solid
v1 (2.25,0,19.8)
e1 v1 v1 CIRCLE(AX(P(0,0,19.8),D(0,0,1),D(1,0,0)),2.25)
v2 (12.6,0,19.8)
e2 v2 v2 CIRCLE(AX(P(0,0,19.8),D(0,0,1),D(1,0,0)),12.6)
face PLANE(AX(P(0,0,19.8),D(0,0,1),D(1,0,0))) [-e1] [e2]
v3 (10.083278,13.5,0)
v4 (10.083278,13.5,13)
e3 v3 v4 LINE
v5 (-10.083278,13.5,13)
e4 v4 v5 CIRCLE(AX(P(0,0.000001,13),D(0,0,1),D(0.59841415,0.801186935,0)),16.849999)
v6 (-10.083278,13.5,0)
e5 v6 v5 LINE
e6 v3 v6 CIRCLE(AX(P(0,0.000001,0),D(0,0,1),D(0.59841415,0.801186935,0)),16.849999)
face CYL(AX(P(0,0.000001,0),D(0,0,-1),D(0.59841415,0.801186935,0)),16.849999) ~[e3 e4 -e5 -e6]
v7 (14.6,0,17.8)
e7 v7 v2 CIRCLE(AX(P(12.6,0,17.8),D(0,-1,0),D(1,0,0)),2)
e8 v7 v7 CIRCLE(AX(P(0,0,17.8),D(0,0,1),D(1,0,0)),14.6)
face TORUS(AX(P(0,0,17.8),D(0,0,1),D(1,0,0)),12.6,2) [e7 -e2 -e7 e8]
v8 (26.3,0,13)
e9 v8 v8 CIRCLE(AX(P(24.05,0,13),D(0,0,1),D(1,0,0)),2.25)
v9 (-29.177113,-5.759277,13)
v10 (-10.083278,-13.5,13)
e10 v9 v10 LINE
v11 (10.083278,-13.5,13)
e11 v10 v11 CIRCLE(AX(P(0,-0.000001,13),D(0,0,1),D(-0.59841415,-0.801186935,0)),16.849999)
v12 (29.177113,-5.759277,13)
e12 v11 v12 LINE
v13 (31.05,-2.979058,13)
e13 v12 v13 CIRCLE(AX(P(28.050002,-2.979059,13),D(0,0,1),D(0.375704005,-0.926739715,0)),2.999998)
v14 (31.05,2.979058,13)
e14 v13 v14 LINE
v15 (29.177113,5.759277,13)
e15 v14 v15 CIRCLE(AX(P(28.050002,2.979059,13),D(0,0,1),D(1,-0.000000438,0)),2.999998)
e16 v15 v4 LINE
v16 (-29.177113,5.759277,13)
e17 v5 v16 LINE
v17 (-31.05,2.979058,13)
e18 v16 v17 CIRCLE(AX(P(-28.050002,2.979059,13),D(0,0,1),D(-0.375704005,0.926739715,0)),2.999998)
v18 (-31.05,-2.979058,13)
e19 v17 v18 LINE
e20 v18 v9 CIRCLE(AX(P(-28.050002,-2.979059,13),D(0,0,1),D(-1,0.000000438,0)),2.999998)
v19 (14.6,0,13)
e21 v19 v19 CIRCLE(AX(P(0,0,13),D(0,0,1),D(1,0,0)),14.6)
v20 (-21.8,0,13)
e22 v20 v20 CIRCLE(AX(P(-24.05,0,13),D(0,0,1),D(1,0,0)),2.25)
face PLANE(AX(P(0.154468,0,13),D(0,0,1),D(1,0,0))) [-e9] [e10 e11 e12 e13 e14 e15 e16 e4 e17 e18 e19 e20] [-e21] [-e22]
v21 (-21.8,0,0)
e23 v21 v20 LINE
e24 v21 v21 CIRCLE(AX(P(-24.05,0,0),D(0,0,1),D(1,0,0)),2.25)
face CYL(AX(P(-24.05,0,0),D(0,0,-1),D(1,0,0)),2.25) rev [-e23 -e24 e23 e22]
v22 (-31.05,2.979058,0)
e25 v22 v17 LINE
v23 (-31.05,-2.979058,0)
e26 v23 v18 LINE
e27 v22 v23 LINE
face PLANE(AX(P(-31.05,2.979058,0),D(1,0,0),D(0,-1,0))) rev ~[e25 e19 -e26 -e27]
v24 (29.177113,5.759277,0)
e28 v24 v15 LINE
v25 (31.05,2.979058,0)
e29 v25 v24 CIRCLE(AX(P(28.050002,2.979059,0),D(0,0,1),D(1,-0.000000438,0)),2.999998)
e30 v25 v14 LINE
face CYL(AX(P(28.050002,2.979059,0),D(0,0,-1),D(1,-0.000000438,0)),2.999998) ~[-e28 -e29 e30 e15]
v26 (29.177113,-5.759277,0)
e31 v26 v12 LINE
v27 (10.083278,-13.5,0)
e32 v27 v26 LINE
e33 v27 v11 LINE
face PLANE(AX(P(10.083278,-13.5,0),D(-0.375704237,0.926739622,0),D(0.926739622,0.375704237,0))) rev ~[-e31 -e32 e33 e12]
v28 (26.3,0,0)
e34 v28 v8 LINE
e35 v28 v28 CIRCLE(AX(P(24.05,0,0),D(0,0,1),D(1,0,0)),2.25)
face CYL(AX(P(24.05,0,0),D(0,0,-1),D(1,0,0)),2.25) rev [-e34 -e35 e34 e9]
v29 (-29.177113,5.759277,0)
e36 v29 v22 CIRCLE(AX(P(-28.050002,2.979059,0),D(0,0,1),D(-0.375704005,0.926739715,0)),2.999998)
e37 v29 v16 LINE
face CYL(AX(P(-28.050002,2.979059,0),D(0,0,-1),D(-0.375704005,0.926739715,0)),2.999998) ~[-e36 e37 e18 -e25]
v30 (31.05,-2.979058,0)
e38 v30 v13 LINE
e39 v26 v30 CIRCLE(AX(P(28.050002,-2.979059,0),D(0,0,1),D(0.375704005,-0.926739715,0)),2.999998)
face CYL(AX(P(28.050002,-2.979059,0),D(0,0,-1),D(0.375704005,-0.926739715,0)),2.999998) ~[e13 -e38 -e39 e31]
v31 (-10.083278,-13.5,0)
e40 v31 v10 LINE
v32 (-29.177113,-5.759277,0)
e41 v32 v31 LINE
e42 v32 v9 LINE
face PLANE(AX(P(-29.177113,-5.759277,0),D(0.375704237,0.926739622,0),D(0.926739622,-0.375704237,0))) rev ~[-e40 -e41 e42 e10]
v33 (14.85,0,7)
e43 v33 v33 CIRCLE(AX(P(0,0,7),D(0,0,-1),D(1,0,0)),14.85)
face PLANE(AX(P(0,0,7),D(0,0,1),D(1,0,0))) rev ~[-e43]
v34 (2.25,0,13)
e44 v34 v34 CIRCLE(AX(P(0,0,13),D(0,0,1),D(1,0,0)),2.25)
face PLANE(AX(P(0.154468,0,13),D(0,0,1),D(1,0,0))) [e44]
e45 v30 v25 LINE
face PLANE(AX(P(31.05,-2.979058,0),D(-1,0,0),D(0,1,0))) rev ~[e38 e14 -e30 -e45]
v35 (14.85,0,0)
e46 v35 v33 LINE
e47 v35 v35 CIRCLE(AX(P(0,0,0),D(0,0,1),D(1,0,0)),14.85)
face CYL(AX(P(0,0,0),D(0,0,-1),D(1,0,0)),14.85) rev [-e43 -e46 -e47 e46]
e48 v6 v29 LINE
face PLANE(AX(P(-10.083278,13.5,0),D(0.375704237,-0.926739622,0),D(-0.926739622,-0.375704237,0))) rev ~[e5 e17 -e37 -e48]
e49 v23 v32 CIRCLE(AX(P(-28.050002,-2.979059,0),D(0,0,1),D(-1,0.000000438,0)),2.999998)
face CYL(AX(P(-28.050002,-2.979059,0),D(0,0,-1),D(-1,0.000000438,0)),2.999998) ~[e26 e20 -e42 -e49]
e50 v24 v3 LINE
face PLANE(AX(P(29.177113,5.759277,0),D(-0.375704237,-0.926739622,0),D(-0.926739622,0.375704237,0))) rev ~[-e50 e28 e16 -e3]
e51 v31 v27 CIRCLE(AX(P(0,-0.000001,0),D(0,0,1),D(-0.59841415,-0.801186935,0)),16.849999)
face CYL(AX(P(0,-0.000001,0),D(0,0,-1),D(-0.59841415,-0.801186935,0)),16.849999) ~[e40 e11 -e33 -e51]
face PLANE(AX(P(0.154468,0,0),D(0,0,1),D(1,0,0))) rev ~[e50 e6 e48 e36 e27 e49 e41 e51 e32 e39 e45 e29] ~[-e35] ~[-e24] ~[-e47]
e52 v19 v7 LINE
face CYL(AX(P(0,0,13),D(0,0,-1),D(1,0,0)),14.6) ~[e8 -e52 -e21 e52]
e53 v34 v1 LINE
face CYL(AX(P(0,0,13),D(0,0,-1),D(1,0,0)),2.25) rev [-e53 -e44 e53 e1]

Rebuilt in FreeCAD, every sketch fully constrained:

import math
import FreeCAD as App
import Part
import Sketcher


def edges_at(feature, points):
    """Names of the edges that pass closest to the given points."""
    edges = feature.Shape.Edges
    near = lambda p: min(range(len(edges)), key=lambda i: edges[i].distToShape(Part.Vertex(*p))[0])
    return sorted({f"Edge{near(p) + 1}" for p in points})

doc = App.newDocument("Part")
body = doc.addObject("PartDesign::Body", "Body")

# Sketch on XY plane
sketch1 = body.newObject("Sketcher::SketchObject", "Sketch")
sketch1.AttachmentSupport = (doc.getObject("XY_Plane"), [""])
sketch1.MapMode = "FlatFace"
sketch1.addGeometry(Part.ArcOfCircle(Part.Circle(App.Vector(0, 0, 0), App.Vector(0, 0, 1), 16.8), math.radians(-127), math.radians(-53)), False)
sketch1.addGeometry(Part.LineSegment(App.Vector(10.1, -13.5, 0), App.Vector(29.2, -5.8, 0)), False)
sketch1.addGeometry(Part.ArcOfCircle(Part.Circle(App.Vector(28.1, -3, 0), App.Vector(0, 0, 1), 3), math.radians(-68), math.radians(0)), False)
sketch1.addGeometry(Part.LineSegment(App.Vector(31.1, -3, 0), App.Vector(31.1, 3, 0)), False)
sketch1.addGeometry(Part.ArcOfCircle(Part.Circle(App.Vector(28.1, 3, 0), App.Vector(0, 0, 1), 3), math.radians(0), math.radians(68)), False)
sketch1.addGeometry(Part.LineSegment(App.Vector(29.2, 5.8, 0), App.Vector(10.1, 13.5, 0)), False)
sketch1.addGeometry(Part.ArcOfCircle(Part.Circle(App.Vector(0, 0, 0), App.Vector(0, 0, 1), 16.8), math.radians(53), math.radians(127)), False)
sketch1.addGeometry(Part.LineSegment(App.Vector(-10.1, 13.5, 0), App.Vector(-29.2, 5.8, 0)), False)
sketch1.addGeometry(Part.ArcOfCircle(Part.Circle(App.Vector(-28.1, 3, 0), App.Vector(0, 0, 1), 3), math.radians(112), math.radians(180)), False)
sketch1.addGeometry(Part.LineSegment(App.Vector(-31.1, 3, 0), App.Vector(-31.1, -3, 0)), False)
sketch1.addGeometry(Part.ArcOfCircle(Part.Circle(App.Vector(-28.1, -3, 0), App.Vector(0, 0, 1), 3), math.radians(180), math.radians(248)), False)
sketch1.addGeometry(Part.LineSegment(App.Vector(-29.2, -5.8, 0), App.Vector(-10.1, -13.5, 0)), False)
sketch1.addGeometry(Part.Circle(App.Vector(-24.1, 0, 0), App.Vector(0, 0, 1), 2.2), False)
sketch1.addGeometry(Part.Circle(App.Vector(0, 0, 0), App.Vector(0, 0, 1), 14.8), False)
sketch1.addGeometry(Part.Circle(App.Vector(24.1, 0, 0), App.Vector(0, 0, 1), 2.2), False)
sketch1.addConstraint(Sketcher.Constraint("Coincident", 0, 2, 1, 1))
sketch1.addConstraint(Sketcher.Constraint("Tangent", 1, 2, 2, 1))
sketch1.addConstraint(Sketcher.Constraint("Tangent", 2, 2, 3, 1))
sketch1.addConstraint(Sketcher.Constraint("Tangent", 3, 2, 4, 1))
sketch1.addConstraint(Sketcher.Constraint("Tangent", 4, 2, 5, 1))
sketch1.addConstraint(Sketcher.Constraint("Coincident", 5, 2, 6, 1))
sketch1.addConstraint(Sketcher.Constraint("Coincident", 6, 2, 7, 1))
sketch1.addConstraint(Sketcher.Constraint("Tangent", 7, 2, 8, 1))
sketch1.addConstraint(Sketcher.Constraint("Tangent", 8, 2, 9, 1))
sketch1.addConstraint(Sketcher.Constraint("Tangent", 9, 2, 10, 1))
sketch1.addConstraint(Sketcher.Constraint("Tangent", 10, 2, 11, 1))
sketch1.addConstraint(Sketcher.Constraint("Coincident", 11, 2, 0, 1))
sketch1.addConstraint(Sketcher.Constraint("Vertical", 3))
sketch1.addConstraint(Sketcher.Constraint("Vertical", 9))
sketch1.addConstraint(Sketcher.Constraint("Coincident", 0, 3, -1, 1))
sketch1.addConstraint(Sketcher.Constraint("Coincident", 6, 3, -1, 1))
sketch1.addConstraint(Sketcher.Constraint("Coincident", 13, 3, -1, 1))
sketch1.addConstraint(Sketcher.Constraint("Equal", 2, 4))
sketch1.addConstraint(Sketcher.Constraint("Equal", 0, 6))
sketch1.addConstraint(Sketcher.Constraint("Equal", 4, 8))
sketch1.addConstraint(Sketcher.Constraint("Equal", 8, 10))
sketch1.addConstraint(Sketcher.Constraint("Equal", 12, 14))
sketch1.addConstraint(Sketcher.Constraint("Symmetric", 2, 3, 8, 3, -1, 1))
sketch1.addConstraint(Sketcher.Constraint("Symmetric", 12, 3, 14, 3, -1, 1))
sketch1.addConstraint(Sketcher.Constraint("Symmetric", 4, 2, 10, 2, -1, 1))
sketch1.addConstraint(Sketcher.Constraint("Symmetric", 4, 2, 7, 2, -2))
sketch1.addConstraint(Sketcher.Constraint("PointOnObject", 12, 3, -1))
sketch1.addConstraint(Sketcher.Constraint("Parallel", 1, 7))
sketch1.addConstraint(Sketcher.Constraint("Radius", 2, 2.999998))
sketch1.addConstraint(Sketcher.Constraint("Diameter", 12, 4.5))
sketch1.addConstraint(Sketcher.Constraint("Diameter", 13, 29.7))
sketch1.addConstraint(Sketcher.Constraint("Radius", 0, 16.849999))
sketch1.addConstraint(Sketcher.Constraint("DistanceX", 8, 3, 12, 3, 4.000002))
sketch1.addConstraint(Sketcher.Constraint("DistanceY", 0, 2, -1, 1, 13.5))
sketch1.addConstraint(Sketcher.Constraint("DistanceX", 12, 3, 2, 3, 52.100002))
sketch1.addConstraint(Sketcher.Constraint("DistanceY", 3, 1, 3, 2, 5.958116))
pad1 = body.newObject("PartDesign::Pad", "Pad")
pad1.Profile = sketch1
pad1.Length = 13

# Sketch on XY plane
sketch2 = body.newObject("Sketcher::SketchObject", "Sketch001")
sketch2.AttachmentSupport = (doc.getObject("XY_Plane"), [""])
sketch2.MapMode = "FlatFace"
sketch2.AttachmentOffset = App.Placement(App.Vector(0, 0, 13), App.Rotation())
sketch2.addGeometry(Part.Circle(App.Vector(0, 0, 0), App.Vector(0, 0, 1), 15), False)
sketch2.addConstraint(Sketcher.Constraint("Coincident", 0, 3, -1, 1))
sketch2.addConstraint(Sketcher.Constraint("Diameter", 0, 30.1))
pad2 = body.newObject("PartDesign::Pad", "Pad001")
pad2.Profile = sketch2
pad2.Length = 6
pad2.Reversed = True

# Sketch on XY plane
sketch3 = body.newObject("Sketcher::SketchObject", "Sketch002")
sketch3.AttachmentSupport = (doc.getObject("XY_Plane"), [""])
sketch3.MapMode = "FlatFace"
sketch3.AttachmentOffset = App.Placement(App.Vector(0, 0, 13), App.Rotation())
sketch3.addGeometry(Part.Circle(App.Vector(0, 0, 0), App.Vector(0, 0, 1), 14.6), False)
sketch3.addGeometry(Part.Circle(App.Vector(0, 0, 0), App.Vector(0, 0, 1), 2.2), False)
sketch3.addConstraint(Sketcher.Constraint("Coincident", 0, 3, -1, 1))
sketch3.addConstraint(Sketcher.Constraint("Coincident", 1, 3, -1, 1))
sketch3.addConstraint(Sketcher.Constraint("Diameter", 0, 29.2))
sketch3.addConstraint(Sketcher.Constraint("Diameter", 1, 4.5))
pad3 = body.newObject("PartDesign::Pad", "Pad002")
pad3.Profile = sketch3
pad3.Length = 6.8
doc.recompute()

fillet = body.newObject("PartDesign::Fillet", "Fillet")
fillet.Base = (pad3, edges_at(pad3, [(-14.6, 0, 19.8)]))
fillet.Radius = 2

doc.recompute()
